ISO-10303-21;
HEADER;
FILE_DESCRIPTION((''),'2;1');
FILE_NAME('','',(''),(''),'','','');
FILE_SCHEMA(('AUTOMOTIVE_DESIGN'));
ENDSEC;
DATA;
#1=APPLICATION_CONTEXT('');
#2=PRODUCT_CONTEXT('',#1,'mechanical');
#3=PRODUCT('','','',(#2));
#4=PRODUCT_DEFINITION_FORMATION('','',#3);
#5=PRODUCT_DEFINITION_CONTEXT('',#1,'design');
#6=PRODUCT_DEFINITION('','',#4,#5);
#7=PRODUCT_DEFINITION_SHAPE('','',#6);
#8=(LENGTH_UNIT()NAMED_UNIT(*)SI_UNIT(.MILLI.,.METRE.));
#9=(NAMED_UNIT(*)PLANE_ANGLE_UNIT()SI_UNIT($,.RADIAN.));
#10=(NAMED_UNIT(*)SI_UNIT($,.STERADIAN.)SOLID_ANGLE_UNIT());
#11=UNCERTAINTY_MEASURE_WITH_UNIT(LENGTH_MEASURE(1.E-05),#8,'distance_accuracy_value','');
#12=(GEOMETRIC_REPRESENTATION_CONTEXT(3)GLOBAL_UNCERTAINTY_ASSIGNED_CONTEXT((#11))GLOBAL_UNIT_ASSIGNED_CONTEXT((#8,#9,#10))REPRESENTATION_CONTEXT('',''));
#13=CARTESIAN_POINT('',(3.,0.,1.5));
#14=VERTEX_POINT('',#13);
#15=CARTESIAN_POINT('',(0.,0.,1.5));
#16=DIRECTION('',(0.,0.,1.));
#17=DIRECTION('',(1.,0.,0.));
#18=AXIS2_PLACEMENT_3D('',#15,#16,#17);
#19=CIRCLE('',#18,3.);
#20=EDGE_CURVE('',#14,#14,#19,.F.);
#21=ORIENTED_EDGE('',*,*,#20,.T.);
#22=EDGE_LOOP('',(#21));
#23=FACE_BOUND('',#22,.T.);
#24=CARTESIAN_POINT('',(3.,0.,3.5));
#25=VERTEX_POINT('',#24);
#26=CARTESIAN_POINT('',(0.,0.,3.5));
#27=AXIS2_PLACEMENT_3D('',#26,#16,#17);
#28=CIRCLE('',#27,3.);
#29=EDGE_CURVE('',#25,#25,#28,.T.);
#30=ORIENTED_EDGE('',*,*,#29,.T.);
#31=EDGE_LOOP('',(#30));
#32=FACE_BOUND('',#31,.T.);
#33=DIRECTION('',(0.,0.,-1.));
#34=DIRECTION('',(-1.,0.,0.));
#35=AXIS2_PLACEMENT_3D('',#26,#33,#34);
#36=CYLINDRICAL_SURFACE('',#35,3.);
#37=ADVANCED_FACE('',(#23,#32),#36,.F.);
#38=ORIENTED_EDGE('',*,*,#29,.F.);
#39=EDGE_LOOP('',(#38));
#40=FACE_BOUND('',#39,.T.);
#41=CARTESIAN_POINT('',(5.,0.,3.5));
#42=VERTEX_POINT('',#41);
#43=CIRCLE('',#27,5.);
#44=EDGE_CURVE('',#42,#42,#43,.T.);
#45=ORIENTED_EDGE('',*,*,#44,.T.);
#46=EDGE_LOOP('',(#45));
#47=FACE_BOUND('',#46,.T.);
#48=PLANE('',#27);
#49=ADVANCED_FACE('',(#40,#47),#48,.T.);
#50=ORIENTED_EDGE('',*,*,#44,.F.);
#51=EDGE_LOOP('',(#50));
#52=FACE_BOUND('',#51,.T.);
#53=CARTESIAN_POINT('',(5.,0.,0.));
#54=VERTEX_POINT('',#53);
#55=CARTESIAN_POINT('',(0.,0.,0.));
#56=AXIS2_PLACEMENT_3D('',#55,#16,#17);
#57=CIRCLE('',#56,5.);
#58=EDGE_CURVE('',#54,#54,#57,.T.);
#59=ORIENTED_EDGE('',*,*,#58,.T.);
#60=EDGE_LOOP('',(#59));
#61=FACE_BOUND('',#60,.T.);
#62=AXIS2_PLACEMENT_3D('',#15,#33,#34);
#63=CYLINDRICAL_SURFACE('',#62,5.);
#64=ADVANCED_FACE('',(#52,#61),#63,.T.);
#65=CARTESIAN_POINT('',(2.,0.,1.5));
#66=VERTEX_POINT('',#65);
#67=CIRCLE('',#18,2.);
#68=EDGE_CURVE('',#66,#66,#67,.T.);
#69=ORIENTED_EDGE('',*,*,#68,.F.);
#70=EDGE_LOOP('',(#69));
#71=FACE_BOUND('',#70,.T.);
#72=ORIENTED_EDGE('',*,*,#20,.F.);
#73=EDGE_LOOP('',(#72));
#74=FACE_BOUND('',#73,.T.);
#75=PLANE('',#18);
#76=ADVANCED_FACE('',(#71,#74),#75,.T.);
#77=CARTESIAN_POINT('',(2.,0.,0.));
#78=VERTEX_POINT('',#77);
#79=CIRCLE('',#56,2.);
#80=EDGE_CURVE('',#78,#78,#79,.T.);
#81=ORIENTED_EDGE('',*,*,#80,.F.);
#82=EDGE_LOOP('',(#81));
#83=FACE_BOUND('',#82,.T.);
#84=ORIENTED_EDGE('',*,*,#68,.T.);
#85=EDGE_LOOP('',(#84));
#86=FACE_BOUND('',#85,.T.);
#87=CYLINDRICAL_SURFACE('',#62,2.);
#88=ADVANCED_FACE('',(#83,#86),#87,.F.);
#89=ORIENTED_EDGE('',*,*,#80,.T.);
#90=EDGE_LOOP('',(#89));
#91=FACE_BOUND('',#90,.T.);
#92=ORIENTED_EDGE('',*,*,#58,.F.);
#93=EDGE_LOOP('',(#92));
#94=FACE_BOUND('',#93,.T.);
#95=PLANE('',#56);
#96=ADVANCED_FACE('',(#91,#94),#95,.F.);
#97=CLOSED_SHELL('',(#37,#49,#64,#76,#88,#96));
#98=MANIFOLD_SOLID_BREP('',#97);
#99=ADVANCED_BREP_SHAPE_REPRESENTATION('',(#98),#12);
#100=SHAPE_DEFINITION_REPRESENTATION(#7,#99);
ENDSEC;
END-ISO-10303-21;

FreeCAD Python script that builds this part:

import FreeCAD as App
import Part
import Sketcher
from FreeCAD import Vector

doc = App.newDocument("Part")
body = doc.addObject("PartDesign::Body", "Body")

# Sketch on XY plane
sketch1 = doc.addObject("Sketcher::SketchObject", "Sketch")
body.addObject(sketch1)
sketch1.AttachmentSupport = (doc.XY_Plane, [""])
sketch1.MapMode = "FlatFace"
sketch1.addGeometry([
    Part.Circle(Vector(0, 0, 0), Vector(0, 0, 1), 5),
    Part.Circle(Vector(0, 0, 0), Vector(0, 0, 1), 2),
], False)
sketch1.addConstraint([
    Sketcher.Constraint("Coincident", 0, 3, -1, 1),
    Sketcher.Constraint("Coincident", 1, 3, -1, 1),
    Sketcher.Constraint("Diameter", 0, 10.0),
    Sketcher.Constraint("Diameter", 1, 4.0),
])
pad1 = doc.addObject("PartDesign::Pad", "Pad")
body.addObject(pad1)
pad1.Profile = sketch1
pad1.Length = 1.5

# Sketch on XY plane
sketch2 = doc.addObject("Sketcher::SketchObject", "Sketch001")
body.addObject(sketch2)
sketch2.AttachmentSupport = (doc.XY_Plane, [""])
sketch2.MapMode = "FlatFace"
sketch2.AttachmentOffset = App.Placement(Vector(0, 0, 1.5), App.Rotation())
sketch2.addGeometry([
    Part.Circle(Vector(0, 0, 0), Vector(0, 0, 1), 5),
    Part.Circle(Vector(0, 0, 0), Vector(0, 0, 1), 3),
], False)
sketch2.addConstraint([
    Sketcher.Constraint("Coincident", 0, 3, -1, 1),
    Sketcher.Constraint("Coincident", 1, 3, -1, 1),
    Sketcher.Constraint("Diameter", 0, 10.0),
    Sketcher.Constraint("Diameter", 1, 6.0),
])
pad2 = doc.addObject("PartDesign::Pad", "Pad001")
body.addObject(pad2)
pad2.Profile = sketch2
pad2.Length = 2

doc.recompute()
